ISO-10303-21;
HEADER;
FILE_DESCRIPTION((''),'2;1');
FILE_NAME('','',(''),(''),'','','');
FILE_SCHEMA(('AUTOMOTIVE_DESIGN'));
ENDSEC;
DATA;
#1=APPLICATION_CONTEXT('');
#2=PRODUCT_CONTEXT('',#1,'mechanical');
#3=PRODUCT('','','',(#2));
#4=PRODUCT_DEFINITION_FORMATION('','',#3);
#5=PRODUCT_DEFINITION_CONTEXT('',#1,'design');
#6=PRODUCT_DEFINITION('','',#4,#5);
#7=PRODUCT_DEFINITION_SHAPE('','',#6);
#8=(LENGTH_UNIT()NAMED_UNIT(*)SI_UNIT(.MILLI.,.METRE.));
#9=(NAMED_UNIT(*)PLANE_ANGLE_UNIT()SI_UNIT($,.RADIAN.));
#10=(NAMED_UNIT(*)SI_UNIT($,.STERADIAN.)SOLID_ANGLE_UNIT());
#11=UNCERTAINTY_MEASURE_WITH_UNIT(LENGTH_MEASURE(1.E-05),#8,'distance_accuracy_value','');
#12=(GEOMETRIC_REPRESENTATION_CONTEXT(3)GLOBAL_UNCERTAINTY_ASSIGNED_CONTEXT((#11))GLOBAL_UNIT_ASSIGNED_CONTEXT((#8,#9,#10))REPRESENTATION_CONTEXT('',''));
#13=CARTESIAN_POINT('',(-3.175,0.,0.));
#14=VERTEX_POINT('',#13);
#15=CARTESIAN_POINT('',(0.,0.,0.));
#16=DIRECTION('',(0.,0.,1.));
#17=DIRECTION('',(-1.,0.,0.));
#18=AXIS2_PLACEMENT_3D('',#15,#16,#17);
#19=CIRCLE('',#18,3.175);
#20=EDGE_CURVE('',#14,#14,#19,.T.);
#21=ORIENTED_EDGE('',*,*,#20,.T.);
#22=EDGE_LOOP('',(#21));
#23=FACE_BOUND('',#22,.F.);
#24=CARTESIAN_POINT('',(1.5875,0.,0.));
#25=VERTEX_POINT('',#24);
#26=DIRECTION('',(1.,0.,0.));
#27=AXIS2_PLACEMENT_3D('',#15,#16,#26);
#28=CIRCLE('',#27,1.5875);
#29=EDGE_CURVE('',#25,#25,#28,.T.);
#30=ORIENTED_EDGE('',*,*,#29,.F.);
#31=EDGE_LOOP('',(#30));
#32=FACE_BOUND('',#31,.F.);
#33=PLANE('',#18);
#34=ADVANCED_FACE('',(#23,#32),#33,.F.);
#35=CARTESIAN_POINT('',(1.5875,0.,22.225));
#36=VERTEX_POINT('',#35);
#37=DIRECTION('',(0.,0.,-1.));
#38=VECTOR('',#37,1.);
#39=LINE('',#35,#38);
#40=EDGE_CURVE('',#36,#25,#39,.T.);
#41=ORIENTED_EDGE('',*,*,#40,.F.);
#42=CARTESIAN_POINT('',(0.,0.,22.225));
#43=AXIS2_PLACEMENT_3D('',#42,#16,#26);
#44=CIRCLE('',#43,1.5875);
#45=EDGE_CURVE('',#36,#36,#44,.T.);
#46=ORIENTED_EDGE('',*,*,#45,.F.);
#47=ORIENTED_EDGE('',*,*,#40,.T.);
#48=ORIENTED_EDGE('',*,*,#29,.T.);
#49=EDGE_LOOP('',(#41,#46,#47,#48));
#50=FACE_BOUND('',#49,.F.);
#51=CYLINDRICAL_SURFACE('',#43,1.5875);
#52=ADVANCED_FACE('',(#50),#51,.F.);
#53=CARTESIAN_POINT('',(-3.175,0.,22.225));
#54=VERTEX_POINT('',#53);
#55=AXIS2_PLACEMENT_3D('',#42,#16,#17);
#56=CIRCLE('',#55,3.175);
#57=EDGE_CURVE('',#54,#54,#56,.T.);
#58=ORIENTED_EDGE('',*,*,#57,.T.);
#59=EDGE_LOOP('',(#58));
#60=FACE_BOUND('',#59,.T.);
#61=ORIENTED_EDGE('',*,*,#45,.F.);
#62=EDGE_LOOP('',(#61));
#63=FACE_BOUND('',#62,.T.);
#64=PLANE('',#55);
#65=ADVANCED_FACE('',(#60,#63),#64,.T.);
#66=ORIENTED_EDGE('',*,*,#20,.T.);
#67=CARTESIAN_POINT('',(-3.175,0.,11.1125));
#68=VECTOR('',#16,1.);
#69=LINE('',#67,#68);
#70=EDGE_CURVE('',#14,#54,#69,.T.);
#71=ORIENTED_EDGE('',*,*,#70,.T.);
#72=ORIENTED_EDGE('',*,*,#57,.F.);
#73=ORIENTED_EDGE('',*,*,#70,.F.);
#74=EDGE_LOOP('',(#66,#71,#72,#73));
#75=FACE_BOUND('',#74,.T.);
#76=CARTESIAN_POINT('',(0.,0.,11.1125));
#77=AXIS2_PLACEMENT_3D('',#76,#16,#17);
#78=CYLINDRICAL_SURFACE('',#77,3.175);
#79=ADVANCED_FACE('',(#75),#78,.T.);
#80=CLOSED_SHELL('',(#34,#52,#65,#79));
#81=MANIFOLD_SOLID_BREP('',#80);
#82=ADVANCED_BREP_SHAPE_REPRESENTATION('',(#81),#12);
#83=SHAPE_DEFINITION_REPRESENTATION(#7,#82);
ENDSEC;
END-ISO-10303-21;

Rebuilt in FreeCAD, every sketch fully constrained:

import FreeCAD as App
import Part
import Sketcher
from FreeCAD import Vector
Q = App.Units.Quantity

doc = App.newDocument("Part")
body = doc.addObject("PartDesign::Body", "Body")

# Sketch on XZ plane
sketch1 = body.newObject("Sketcher::SketchObject", "Sketch")
sketch1.AttachmentSupport = (doc.getObject("XZ_Plane"), [""])
sketch1.MapMode = "FlatFace"
sketch1.addGeometry(Part.LineSegment(Vector(-3.2, 22.2, 0), Vector(-3.2, 0, 0)), False)
sketch1.addGeometry(Part.LineSegment(Vector(-3.2, 0, 0), Vector(0, 0, 0)), False)
sketch1.addGeometry(Part.LineSegment(Vector(0, 0, 0), Vector(0, 22.2, 0)), False)
sketch1.addGeometry(Part.LineSegment(Vector(0, 22.2, 0), Vector(-3.2, 22.2, 0)), False)
sketch1.addConstraint(Sketcher.Constraint("Coincident", 0, 2, 1, 1))
sketch1.addConstraint(Sketcher.Constraint("Coincident", 1, 2, 2, 1))
sketch1.addConstraint(Sketcher.Constraint("Coincident", 2, 2, 3, 1))
sketch1.addConstraint(Sketcher.Constraint("Coincident", 3, 2, 0, 1))
sketch1.addConstraint(Sketcher.Constraint("Vertical", 0))
sketch1.addConstraint(Sketcher.Constraint("Horizontal", 1))
sketch1.addConstraint(Sketcher.Constraint("Vertical", 2))
sketch1.addConstraint(Sketcher.Constraint("Horizontal", 3))
sketch1.addConstraint(Sketcher.Constraint("Coincident", 1, 2, -1, 1))
sketch1.addConstraint(Sketcher.Constraint("DistanceX", 1, 1, 1, 2, Q("0.125 in")))
sketch1.addConstraint(Sketcher.Constraint("DistanceY", 0, 2, 0, 1, Q("0.875 in")))
revolution = body.newObject("PartDesign::Revolution", "Revolution")
revolution.Profile = sketch1
revolution.ReferenceAxis = (sketch1, ["V_Axis"])
revolution.Angle = 360

# Sketch on XY plane
sketch2 = body.newObject("Sketcher::SketchObject", "Sketch001")
sketch2.AttachmentSupport = (doc.getObject("XY_Plane"), [""])
sketch2.MapMode = "FlatFace"
sketch2.AttachmentOffset = App.Placement(Vector(0, 0, 0.875 * 25.4), App.Rotation())
sketch2.addGeometry(Part.Circle(Vector(0, 0, 0), Vector(0, 0, 1), 1.6), False)
sketch2.addConstraint(Sketcher.Constraint("Coincident", 0, 3, -1, 1))
sketch2.addConstraint(Sketcher.Constraint("Diameter", 0, Q("0.125 in")))
pocket1 = body.newObject("PartDesign::Pocket", "Pocket")
pocket1.Profile = sketch2
pocket1.Type = "ThroughAll"

doc.recompute()
